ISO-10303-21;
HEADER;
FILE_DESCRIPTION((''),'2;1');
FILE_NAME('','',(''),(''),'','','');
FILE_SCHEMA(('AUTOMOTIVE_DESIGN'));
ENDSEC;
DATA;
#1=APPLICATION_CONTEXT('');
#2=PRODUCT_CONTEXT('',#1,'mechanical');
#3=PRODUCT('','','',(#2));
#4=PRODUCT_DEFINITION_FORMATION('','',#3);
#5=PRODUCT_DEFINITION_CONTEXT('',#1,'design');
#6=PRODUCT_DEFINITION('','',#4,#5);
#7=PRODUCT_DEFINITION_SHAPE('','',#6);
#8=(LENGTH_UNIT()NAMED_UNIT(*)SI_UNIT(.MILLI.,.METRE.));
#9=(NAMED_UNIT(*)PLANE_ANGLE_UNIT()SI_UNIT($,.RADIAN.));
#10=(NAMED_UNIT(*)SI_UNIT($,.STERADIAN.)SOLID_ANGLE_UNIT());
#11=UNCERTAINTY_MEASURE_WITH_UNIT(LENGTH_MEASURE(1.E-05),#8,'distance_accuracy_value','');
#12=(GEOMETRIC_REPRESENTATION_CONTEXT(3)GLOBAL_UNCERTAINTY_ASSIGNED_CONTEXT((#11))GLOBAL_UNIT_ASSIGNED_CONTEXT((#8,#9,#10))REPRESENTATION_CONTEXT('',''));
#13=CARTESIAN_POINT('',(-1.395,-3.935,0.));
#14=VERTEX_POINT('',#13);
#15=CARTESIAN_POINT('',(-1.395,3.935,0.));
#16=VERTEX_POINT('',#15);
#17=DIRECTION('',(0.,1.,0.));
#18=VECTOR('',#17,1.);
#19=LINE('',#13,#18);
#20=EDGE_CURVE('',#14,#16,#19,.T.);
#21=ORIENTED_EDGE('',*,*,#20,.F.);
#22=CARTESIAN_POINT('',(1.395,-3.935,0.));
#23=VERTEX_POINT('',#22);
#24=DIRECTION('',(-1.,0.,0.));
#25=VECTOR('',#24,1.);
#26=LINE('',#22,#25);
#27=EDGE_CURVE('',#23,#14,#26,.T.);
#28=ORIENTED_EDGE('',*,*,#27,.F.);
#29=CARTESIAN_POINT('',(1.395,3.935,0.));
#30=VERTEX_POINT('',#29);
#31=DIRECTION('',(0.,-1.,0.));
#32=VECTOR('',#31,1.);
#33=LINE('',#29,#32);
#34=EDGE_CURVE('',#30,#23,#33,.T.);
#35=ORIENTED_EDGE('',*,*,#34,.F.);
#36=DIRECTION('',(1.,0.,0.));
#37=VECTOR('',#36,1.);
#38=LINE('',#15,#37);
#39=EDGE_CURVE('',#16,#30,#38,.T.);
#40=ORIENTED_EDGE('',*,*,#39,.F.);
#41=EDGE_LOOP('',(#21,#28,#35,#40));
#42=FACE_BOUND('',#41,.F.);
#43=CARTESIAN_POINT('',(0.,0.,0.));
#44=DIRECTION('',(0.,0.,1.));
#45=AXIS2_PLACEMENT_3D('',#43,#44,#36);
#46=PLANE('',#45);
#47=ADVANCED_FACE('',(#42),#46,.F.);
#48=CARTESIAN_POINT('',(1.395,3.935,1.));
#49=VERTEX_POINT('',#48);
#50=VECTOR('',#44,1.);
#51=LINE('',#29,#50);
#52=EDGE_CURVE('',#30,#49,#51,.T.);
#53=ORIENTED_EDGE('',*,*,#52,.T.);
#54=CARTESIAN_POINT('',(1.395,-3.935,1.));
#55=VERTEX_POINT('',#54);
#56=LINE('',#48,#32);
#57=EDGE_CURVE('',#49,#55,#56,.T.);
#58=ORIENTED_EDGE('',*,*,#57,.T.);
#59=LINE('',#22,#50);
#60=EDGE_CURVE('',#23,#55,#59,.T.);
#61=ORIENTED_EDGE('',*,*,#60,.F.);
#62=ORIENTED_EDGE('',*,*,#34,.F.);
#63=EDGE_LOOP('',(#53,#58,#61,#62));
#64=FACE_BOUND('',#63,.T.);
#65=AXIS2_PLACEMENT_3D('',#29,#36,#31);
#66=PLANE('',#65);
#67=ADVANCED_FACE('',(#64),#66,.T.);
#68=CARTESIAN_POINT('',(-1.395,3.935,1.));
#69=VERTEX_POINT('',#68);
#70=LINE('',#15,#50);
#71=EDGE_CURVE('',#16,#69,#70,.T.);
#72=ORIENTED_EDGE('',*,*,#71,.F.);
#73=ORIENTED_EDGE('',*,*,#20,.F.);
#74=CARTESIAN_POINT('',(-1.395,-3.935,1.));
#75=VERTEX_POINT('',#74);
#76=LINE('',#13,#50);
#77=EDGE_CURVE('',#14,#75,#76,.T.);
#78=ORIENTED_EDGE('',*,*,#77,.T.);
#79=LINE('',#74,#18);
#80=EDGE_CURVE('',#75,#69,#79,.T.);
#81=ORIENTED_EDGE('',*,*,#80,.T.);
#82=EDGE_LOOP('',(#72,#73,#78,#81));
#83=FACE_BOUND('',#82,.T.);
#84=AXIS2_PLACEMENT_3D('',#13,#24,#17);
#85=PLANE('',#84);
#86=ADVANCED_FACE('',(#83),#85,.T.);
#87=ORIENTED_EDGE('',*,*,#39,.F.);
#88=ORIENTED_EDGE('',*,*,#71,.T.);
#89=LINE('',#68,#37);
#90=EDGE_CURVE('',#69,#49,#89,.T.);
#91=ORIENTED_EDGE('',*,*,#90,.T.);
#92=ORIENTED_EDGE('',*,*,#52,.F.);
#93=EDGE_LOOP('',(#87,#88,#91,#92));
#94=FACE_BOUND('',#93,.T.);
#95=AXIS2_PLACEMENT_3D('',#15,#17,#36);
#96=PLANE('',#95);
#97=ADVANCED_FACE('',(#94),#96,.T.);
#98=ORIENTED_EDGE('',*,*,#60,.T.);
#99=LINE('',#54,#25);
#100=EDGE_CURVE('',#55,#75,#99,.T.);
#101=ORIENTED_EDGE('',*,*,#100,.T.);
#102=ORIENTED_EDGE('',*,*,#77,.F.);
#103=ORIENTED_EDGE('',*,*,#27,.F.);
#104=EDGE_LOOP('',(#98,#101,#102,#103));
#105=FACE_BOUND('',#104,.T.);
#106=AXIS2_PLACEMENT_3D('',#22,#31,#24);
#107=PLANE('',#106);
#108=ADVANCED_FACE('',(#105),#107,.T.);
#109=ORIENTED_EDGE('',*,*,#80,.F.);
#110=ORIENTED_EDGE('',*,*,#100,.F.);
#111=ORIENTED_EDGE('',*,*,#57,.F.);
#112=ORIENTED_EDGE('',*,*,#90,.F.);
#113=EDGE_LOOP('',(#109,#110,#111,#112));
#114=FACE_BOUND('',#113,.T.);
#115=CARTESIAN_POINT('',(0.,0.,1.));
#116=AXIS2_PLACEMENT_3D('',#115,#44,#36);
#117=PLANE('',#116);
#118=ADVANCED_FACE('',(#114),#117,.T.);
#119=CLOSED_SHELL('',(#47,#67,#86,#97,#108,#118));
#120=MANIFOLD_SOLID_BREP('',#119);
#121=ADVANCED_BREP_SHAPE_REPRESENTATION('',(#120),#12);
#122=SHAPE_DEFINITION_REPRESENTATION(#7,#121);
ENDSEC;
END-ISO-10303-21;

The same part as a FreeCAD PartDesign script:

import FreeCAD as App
import Part
import Sketcher

V = App.Vector


def add_polygon(sketch, points):
    """Adds a closed chain of lines whose ends are joined by coincident constraints."""
    first, n = sketch.GeometryCount, len(points)
    for a, b in zip(points, points[1:] + points[:1]):
        sketch.addGeometry(Part.LineSegment(App.Vector(*a, 0), App.Vector(*b, 0)), False)
    for i in range(n):
        sketch.addConstraint(Sketcher.Constraint("Coincident", first + i, 2, first + (i + 1) % n, 1))

doc = App.newDocument("Part")
body = doc.addObject("PartDesign::Body", "Body")

# Sketch on XY plane
sketch1 = body.newObject("Sketcher::SketchObject", "Sketch")
sketch1.AttachmentSupport = (doc.getObject("XY_Plane"), [""])
sketch1.MapMode = "FlatFace"
add_polygon(sketch1, [(-1.4, 3.9), (-1.4, -3.9), (1.4, -3.9), (1.4, 3.9)])  # lines 0-3
sketch1.addConstraint([
    Sketcher.Constraint("Vertical", 0),
    Sketcher.Constraint("Horizontal", 1),
    Sketcher.Constraint("Vertical", 2),
    Sketcher.Constraint("Horizontal", 3),
    Sketcher.Constraint("Symmetric", 0, 2, 2, 2, -1, 1),
    Sketcher.Constraint("DistanceX", 1, 1, 1, 2, 2.79),
    Sketcher.Constraint("DistanceY", 0, 2, 0, 1, 7.87),
])
pad1 = body.newObject("PartDesign::Pad", "Pad")
pad1.Profile = sketch1
pad1.Length = 1

doc.recompute()
